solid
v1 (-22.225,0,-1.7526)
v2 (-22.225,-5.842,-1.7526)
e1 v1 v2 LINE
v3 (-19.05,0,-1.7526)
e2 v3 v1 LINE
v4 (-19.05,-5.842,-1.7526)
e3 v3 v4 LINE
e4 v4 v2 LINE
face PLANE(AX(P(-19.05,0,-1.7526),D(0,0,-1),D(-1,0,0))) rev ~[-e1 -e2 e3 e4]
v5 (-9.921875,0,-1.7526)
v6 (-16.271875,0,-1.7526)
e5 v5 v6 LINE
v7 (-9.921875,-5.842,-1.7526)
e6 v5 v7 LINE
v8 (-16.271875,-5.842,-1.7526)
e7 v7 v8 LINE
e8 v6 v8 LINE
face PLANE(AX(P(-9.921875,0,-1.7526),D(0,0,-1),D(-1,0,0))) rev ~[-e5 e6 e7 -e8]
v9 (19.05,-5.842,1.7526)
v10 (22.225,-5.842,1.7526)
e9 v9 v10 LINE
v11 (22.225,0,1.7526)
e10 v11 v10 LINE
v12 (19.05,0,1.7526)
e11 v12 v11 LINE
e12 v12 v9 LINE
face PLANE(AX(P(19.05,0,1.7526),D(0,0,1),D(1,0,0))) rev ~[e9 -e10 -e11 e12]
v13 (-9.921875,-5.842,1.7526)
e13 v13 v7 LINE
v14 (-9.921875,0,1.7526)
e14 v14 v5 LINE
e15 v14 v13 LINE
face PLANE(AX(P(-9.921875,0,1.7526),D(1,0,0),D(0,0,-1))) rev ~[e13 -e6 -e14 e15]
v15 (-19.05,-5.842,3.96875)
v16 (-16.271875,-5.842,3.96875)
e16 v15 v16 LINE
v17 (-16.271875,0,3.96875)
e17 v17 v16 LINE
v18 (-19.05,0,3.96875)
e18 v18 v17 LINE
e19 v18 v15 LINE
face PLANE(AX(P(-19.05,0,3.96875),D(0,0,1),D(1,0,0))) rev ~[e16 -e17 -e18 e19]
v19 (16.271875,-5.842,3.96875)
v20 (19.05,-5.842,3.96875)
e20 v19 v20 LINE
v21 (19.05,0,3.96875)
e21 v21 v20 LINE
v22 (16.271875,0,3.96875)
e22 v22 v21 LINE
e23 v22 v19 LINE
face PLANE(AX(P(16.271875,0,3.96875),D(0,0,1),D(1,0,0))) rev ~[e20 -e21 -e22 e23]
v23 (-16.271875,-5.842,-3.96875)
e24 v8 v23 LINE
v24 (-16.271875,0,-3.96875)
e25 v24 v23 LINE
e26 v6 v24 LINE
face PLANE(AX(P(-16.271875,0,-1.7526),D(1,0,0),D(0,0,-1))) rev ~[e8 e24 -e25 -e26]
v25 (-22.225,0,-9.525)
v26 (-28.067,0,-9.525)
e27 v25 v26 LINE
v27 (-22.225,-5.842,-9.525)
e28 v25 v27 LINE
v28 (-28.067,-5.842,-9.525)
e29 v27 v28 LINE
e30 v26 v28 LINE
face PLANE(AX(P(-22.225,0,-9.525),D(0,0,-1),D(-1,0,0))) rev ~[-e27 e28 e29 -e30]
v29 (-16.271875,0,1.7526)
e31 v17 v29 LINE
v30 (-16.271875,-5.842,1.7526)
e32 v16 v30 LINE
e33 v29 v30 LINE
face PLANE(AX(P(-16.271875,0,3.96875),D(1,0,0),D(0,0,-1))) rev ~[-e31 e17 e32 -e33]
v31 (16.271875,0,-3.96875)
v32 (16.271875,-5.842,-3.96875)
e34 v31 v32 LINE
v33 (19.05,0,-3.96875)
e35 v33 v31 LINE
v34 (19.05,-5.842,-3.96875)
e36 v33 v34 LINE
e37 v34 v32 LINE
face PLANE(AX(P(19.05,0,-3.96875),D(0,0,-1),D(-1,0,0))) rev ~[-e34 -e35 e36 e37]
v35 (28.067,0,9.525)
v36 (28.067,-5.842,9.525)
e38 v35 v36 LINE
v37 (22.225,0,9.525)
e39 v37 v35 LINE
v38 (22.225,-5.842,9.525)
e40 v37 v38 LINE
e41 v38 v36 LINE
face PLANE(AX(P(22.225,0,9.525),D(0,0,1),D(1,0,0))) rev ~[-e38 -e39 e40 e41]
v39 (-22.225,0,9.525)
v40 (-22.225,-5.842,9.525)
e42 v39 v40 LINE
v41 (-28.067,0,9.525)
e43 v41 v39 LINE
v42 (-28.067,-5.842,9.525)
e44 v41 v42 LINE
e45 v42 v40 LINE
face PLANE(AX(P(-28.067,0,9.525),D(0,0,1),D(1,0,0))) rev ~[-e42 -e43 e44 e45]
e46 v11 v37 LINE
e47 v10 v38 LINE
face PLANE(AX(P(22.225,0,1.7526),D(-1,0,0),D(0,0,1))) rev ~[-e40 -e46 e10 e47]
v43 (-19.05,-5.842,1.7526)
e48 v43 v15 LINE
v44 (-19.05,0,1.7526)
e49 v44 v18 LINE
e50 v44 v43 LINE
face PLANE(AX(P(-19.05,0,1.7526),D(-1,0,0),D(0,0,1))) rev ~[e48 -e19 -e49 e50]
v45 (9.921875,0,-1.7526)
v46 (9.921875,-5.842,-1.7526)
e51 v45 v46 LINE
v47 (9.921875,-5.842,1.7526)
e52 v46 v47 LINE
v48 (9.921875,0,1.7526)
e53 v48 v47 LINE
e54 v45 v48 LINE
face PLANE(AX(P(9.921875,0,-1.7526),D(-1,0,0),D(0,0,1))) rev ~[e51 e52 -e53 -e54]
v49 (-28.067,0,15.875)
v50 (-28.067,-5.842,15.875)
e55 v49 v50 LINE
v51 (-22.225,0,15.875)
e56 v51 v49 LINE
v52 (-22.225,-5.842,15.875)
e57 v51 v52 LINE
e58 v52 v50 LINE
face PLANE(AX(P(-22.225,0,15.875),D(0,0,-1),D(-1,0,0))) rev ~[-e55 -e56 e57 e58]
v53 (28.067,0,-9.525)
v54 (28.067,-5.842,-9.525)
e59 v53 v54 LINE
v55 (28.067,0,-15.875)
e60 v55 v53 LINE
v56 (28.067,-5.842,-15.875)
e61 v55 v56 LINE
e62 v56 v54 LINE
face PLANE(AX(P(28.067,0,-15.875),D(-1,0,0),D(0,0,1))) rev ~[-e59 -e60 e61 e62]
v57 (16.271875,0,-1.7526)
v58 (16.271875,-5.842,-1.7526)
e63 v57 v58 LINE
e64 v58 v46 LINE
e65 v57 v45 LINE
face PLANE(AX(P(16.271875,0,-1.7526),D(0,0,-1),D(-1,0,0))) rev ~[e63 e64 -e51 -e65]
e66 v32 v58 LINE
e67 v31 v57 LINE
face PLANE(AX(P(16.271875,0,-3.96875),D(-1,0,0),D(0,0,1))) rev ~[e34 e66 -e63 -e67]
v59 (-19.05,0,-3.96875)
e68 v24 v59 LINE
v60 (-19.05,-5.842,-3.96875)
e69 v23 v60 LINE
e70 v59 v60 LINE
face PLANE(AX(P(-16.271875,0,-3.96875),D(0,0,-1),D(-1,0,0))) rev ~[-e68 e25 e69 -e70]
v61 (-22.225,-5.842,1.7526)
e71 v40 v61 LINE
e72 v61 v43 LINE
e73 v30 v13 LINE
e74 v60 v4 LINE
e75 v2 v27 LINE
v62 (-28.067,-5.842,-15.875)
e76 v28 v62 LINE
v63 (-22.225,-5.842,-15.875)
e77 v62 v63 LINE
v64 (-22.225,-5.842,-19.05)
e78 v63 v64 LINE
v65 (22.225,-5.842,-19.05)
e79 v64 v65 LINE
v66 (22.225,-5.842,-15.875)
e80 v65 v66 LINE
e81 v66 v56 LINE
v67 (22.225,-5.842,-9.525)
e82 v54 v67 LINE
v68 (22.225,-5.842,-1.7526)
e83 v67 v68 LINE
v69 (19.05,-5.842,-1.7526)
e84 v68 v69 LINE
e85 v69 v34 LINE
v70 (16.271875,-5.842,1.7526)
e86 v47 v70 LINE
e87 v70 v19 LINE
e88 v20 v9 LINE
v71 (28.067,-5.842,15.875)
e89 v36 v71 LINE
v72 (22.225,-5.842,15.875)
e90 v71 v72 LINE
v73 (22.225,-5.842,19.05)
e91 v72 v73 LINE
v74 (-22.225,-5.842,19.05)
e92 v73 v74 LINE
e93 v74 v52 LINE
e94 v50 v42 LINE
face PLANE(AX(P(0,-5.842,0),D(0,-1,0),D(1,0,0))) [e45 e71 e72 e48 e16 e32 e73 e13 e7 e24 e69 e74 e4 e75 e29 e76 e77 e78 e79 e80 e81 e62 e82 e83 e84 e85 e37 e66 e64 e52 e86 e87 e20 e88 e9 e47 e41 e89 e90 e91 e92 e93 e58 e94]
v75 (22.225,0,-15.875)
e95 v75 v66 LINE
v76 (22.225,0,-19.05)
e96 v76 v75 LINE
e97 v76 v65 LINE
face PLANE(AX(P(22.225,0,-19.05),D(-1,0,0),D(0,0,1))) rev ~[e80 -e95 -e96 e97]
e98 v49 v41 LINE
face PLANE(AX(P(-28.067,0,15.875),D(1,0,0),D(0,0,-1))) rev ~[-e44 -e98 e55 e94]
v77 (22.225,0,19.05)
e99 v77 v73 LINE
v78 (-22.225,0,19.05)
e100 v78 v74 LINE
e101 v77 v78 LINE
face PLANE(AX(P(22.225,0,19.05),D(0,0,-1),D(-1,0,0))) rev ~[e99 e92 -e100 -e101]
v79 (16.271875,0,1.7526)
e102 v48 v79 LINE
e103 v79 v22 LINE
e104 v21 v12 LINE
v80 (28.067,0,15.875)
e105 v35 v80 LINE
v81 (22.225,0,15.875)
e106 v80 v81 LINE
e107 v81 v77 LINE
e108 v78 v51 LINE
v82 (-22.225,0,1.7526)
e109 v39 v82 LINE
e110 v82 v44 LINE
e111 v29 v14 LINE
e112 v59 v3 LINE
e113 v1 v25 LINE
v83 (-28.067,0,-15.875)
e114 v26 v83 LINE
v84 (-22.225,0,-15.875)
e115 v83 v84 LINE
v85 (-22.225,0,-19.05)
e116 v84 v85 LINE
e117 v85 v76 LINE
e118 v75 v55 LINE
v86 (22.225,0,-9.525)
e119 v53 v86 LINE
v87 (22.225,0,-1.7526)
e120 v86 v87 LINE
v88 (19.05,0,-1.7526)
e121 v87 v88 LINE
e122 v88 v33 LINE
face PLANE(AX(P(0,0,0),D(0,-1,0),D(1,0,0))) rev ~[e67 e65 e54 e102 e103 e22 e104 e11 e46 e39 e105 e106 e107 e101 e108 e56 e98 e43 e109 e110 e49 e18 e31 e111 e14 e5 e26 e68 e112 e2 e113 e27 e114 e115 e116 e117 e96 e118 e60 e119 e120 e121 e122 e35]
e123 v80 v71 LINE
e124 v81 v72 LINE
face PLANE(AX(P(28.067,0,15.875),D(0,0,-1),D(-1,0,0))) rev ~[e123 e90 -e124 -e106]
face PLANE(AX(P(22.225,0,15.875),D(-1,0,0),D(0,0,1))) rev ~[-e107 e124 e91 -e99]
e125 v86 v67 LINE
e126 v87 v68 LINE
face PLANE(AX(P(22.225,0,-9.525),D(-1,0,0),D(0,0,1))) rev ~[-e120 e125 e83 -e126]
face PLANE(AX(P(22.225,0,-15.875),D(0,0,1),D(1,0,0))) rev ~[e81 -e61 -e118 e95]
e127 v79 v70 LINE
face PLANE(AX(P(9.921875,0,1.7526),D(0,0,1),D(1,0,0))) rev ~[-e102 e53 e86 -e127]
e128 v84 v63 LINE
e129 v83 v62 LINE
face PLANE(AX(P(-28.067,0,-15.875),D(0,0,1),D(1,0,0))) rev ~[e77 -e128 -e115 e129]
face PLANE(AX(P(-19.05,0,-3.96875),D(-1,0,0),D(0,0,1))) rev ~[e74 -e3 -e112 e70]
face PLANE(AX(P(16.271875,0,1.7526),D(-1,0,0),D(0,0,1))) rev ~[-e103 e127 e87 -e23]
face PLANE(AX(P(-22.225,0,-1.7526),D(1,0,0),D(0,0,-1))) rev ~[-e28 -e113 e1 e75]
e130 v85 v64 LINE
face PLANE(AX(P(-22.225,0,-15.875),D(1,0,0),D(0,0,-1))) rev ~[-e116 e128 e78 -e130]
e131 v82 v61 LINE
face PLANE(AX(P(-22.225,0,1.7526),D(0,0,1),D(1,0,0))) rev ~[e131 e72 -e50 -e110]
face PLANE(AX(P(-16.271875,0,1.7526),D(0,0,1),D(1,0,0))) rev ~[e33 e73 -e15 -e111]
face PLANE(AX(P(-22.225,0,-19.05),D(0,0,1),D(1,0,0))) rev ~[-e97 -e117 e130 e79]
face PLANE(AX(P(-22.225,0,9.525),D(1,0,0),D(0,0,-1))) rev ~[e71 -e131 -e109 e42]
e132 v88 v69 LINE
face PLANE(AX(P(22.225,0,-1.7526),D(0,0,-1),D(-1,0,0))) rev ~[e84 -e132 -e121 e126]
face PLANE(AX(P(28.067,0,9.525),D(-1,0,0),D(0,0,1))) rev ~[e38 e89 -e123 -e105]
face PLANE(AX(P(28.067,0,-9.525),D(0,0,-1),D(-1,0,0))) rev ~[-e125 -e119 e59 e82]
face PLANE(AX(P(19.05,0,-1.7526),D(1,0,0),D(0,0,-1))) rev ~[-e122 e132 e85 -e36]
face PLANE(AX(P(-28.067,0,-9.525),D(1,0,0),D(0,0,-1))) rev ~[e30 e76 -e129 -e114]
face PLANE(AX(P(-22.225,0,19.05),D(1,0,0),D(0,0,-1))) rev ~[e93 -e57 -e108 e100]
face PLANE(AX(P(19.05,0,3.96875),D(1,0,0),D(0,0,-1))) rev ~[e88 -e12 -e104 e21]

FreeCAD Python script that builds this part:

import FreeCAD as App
import Part
import Sketcher
Q = App.Units.Quantity

doc = App.newDocument("Part")
body = doc.addObject("PartDesign::Body", "Body")

# Sketch on XZ plane
sketch1 = body.newObject("Sketcher::SketchObject", "Sketch")
sketch1.AttachmentSupport = (doc.getObject("XZ_Plane"), [""])
sketch1.MapMode = "FlatFace"
sketch1.addGeometry(Part.LineSegment(App.Vector(22.225, 19.05, 0), App.Vector(-22.225, 19.05, 0)), False)
sketch1.addGeometry(Part.LineSegment(App.Vector(-22.225, 19.05, 0), App.Vector(-22.225, 15.875, 0)), False)
sketch1.addGeometry(Part.LineSegment(App.Vector(-22.225, 15.875, 0), App.Vector(-28.067, 15.875, 0)), False)
sketch1.addGeometry(Part.LineSegment(App.Vector(-28.067, 15.875, 0), App.Vector(-28.067, 9.525, 0)), False)
sketch1.addGeometry(Part.LineSegment(App.Vector(-28.067, 9.525, 0), App.Vector(-22.225, 9.525, 0)), False)
sketch1.addGeometry(Part.LineSegment(App.Vector(-22.225, 9.525, 0), App.Vector(-22.225, 1.7526, 0)), False)
sketch1.addGeometry(Part.LineSegment(App.Vector(-22.225, 1.7526, 0), App.Vector(-19.05, 1.7526, 0)), False)
sketch1.addGeometry(Part.LineSegment(App.Vector(-19.05, 1.7526, 0), App.Vector(-19.05, 3.96875, 0)), False)
sketch1.addGeometry(Part.LineSegment(App.Vector(-19.05, 3.96875, 0), App.Vector(-16.271875, 3.96875, 0)), False)
sketch1.addGeometry(Part.LineSegment(App.Vector(-16.271875, 3.96875, 0), App.Vector(-16.271875, 1.7526, 0)), False)
sketch1.addGeometry(Part.LineSegment(App.Vector(-16.271875, 1.7526, 0), App.Vector(-9.921875, 1.7526, 0)), False)
sketch1.addGeometry(Part.LineSegment(App.Vector(-9.921875, 1.7526, 0), App.Vector(-9.921875, -1.7526, 0)), False)
sketch1.addGeometry(Part.LineSegment(App.Vector(-9.921875, -1.7526, 0), App.Vector(-16.271875, -1.7526, 0)), False)
sketch1.addGeometry(Part.LineSegment(App.Vector(-16.271875, -1.7526, 0), App.Vector(-16.271875, -3.96875, 0)), False)
sketch1.addGeometry(Part.LineSegment(App.Vector(-16.271875, -3.96875, 0), App.Vector(-19.05, -3.96875, 0)), False)
sketch1.addGeometry(Part.LineSegment(App.Vector(-19.05, -3.96875, 0), App.Vector(-19.05, -1.7526, 0)), False)
sketch1.addGeometry(Part.LineSegment(App.Vector(-19.05, -1.7526, 0), App.Vector(-22.225, -1.7526, 0)), False)
sketch1.addGeometry(Part.LineSegment(App.Vector(-22.225, -1.7526, 0), App.Vector(-22.225, -9.525, 0)), False)
sketch1.addGeometry(Part.LineSegment(App.Vector(-22.225, -9.525, 0), App.Vector(-28.067, -9.525, 0)), False)
sketch1.addGeometry(Part.LineSegment(App.Vector(-28.067, -9.525, 0), App.Vector(-28.067, -15.875, 0)), False)
sketch1.addGeometry(Part.LineSegment(App.Vector(-28.067, -15.875, 0), App.Vector(-22.225, -15.875, 0)), False)
sketch1.addGeometry(Part.LineSegment(App.Vector(-22.225, -15.875, 0), App.Vector(-22.225, -19.05, 0)), False)
sketch1.addGeometry(Part.LineSegment(App.Vector(-22.225, -19.05, 0), App.Vector(22.225, -19.05, 0)), False)
sketch1.addGeometry(Part.LineSegment(App.Vector(22.225, -19.05, 0), App.Vector(22.225, -15.875, 0)), False)
sketch1.addGeometry(Part.LineSegment(App.Vector(22.225, -15.875, 0), App.Vector(28.067, -15.875, 0)), False)
sketch1.addGeometry(Part.LineSegment(App.Vector(28.067, -15.875, 0), App.Vector(28.067, -9.525, 0)), False)
sketch1.addGeometry(Part.LineSegment(App.Vector(28.067, -9.525, 0), App.Vector(22.225, -9.525, 0)), False)
sketch1.addGeometry(Part.LineSegment(App.Vector(22.225, -9.525, 0), App.Vector(22.225, -1.7526, 0)), False)
sketch1.addGeometry(Part.LineSegment(App.Vector(22.225, -1.7526, 0), App.Vector(19.05, -1.7526, 0)), False)
sketch1.addGeometry(Part.LineSegment(App.Vector(19.05, -1.7526, 0), App.Vector(19.05, -3.96875, 0)), False)
sketch1.addGeometry(Part.LineSegment(App.Vector(19.05, -3.96875, 0), App.Vector(16.271875, -3.96875, 0)), False)
sketch1.addGeometry(Part.LineSegment(App.Vector(16.271875, -3.96875, 0), App.Vector(16.271875, -1.7526, 0)), False)
sketch1.addGeometry(Part.LineSegment(App.Vector(16.271875, -1.7526, 0), App.Vector(9.921875, -1.7526, 0)), False)
sketch1.addGeometry(Part.LineSegment(App.Vector(9.921875, -1.7526, 0), App.Vector(9.921875, 1.7526, 0)), False)
sketch1.addGeometry(Part.LineSegment(App.Vector(9.921875, 1.7526, 0), App.Vector(16.271875, 1.7526, 0)), False)
sketch1.addGeometry(Part.LineSegment(App.Vector(16.271875, 1.7526, 0), App.Vector(16.271875, 3.96875, 0)), False)
sketch1.addGeometry(Part.LineSegment(App.Vector(16.271875, 3.96875, 0), App.Vector(19.05, 3.96875, 0)), False)
sketch1.addGeometry(Part.LineSegment(App.Vector(19.05, 3.96875, 0), App.Vector(19.05, 1.7526, 0)), False)
sketch1.addGeometry(Part.LineSegment(App.Vector(19.05, 1.7526, 0), App.Vector(22.225, 1.7526, 0)), False)
sketch1.addGeometry(Part.LineSegment(App.Vector(22.225, 1.7526, 0), App.Vector(22.225, 9.525, 0)), False)
sketch1.addGeometry(Part.LineSegment(App.Vector(22.225, 9.525, 0), App.Vector(28.067, 9.525, 0)), False)
sketch1.addGeometry(Part.LineSegment(App.Vector(28.067, 9.525, 0), App.Vector(28.067, 15.875, 0)), False)
sketch1.addGeometry(Part.LineSegment(App.Vector(28.067, 15.875, 0), App.Vector(22.225, 15.875, 0)), False)
sketch1.addGeometry(Part.LineSegment(App.Vector(22.225, 15.875, 0), App.Vector(22.225, 19.05, 0)), False)
sketch1.addConstraint(Sketcher.Constraint("Coincident", 0, 2, 1, 1))
sketch1.addConstraint(Sketcher.Constraint("Coincident", 1, 2, 2, 1))
sketch1.addConstraint(Sketcher.Constraint("Coincident", 2, 2, 3, 1))
sketch1.addConstraint(Sketcher.Constraint("Coincident", 3, 2, 4, 1))
sketch1.addConstraint(Sketcher.Constraint("Coincident", 4, 2, 5, 1))
sketch1.addConstraint(Sketcher.Constraint("Coincident", 5, 2, 6, 1))
sketch1.addConstraint(Sketcher.Constraint("Coincident", 6, 2, 7, 1))
sketch1.addConstraint(Sketcher.Constraint("Coincident", 7, 2, 8, 1))
sketch1.addConstraint(Sketcher.Constraint("Coincident", 8, 2, 9, 1))
sketch1.addConstraint(Sketcher.Constraint("Coincident", 9, 2, 10, 1))
sketch1.addConstraint(Sketcher.Constraint("Coincident", 10, 2, 11, 1))
sketch1.addConstraint(Sketcher.Constraint("Coincident", 11, 2, 12, 1))
sketch1.addConstraint(Sketcher.Constraint("Coincident", 12, 2, 13, 1))
sketch1.addConstraint(Sketcher.Constraint("Coincident", 13, 2, 14, 1))
sketch1.addConstraint(Sketcher.Constraint("Coincident", 14, 2, 15, 1))
sketch1.addConstraint(Sketcher.Constraint("Coincident", 15, 2, 16, 1))
sketch1.addConstraint(Sketcher.Constraint("Coincident", 16, 2, 17, 1))
sketch1.addConstraint(Sketcher.Constraint("Coincident", 17, 2, 18, 1))
sketch1.addConstraint(Sketcher.Constraint("Coincident", 18, 2, 19, 1))
sketch1.addConstraint(Sketcher.Constraint("Coincident", 19, 2, 20, 1))
sketch1.addConstraint(Sketcher.Constraint("Coincident", 20, 2, 21, 1))
sketch1.addConstraint(Sketcher.Constraint("Coincident", 21, 2, 22, 1))
sketch1.addConstraint(Sketcher.Constraint("Coincident", 22, 2, 23, 1))
sketch1.addConstraint(Sketcher.Constraint("Coincident", 23, 2, 24, 1))
sketch1.addConstraint(Sketcher.Constraint("Coincident", 24, 2, 25, 1))
sketch1.addConstraint(Sketcher.Constraint("Coincident", 25, 2, 26, 1))
sketch1.addConstraint(Sketcher.Constraint("Coincident", 26, 2, 27, 1))
sketch1.addConstraint(Sketcher.Constraint("Coincident", 27, 2, 28, 1))
sketch1.addConstraint(Sketcher.Constraint("Coincident", 28, 2, 29, 1))
sketch1.addConstraint(Sketcher.Constraint("Coincident", 29, 2, 30, 1))
sketch1.addConstraint(Sketcher.Constraint("Coincident", 30, 2, 31, 1))
sketch1.addConstraint(Sketcher.Constraint("Coincident", 31, 2, 32, 1))
sketch1.addConstraint(Sketcher.Constraint("Coincident", 32, 2, 33, 1))
sketch1.addConstraint(Sketcher.Constraint("Coincident", 33, 2, 34, 1))
sketch1.addConstraint(Sketcher.Constraint("Coincident", 34, 2, 35, 1))
sketch1.addConstraint(Sketcher.Constraint("Coincident", 35, 2, 36, 1))
sketch1.addConstraint(Sketcher.Constraint("Coincident", 36, 2, 37, 1))
sketch1.addConstraint(Sketcher.Constraint("Coincident", 37, 2, 38, 1))
sketch1.addConstraint(Sketcher.Constraint("Coincident", 38, 2, 39, 1))
sketch1.addConstraint(Sketcher.Constraint("Coincident", 39, 2, 40, 1))
sketch1.addConstraint(Sketcher.Constraint("Coincident", 40, 2, 41, 1))
sketch1.addConstraint(Sketcher.Constraint("Coincident", 41, 2, 42, 1))
sketch1.addConstraint(Sketcher.Constraint("Coincident", 42, 2, 43, 1))
sketch1.addConstraint(Sketcher.Constraint("Coincident", 43, 2, 0, 1))
sketch1.addConstraint(Sketcher.Constraint("Horizontal", 0))
sketch1.addConstraint(Sketcher.Constraint("Vertical", 1))
sketch1.addConstraint(Sketcher.Constraint("Horizontal", 2))
sketch1.addConstraint(Sketcher.Constraint("Vertical", 3))
sketch1.addConstraint(Sketcher.Constraint("Horizontal", 4))
sketch1.addConstraint(Sketcher.Constraint("Vertical", 5))
sketch1.addConstraint(Sketcher.Constraint("Horizontal", 6))
sketch1.addConstraint(Sketcher.Constraint("Vertical", 7))
sketch1.addConstraint(Sketcher.Constraint("Horizontal", 8))
sketch1.addConstraint(Sketcher.Constraint("Vertical", 9))
sketch1.addConstraint(Sketcher.Constraint("Horizontal", 10))
sketch1.addConstraint(Sketcher.Constraint("Vertical", 11))
sketch1.addConstraint(Sketcher.Constraint("Horizontal", 12))
sketch1.addConstraint(Sketcher.Constraint("Vertical", 13))
sketch1.addConstraint(Sketcher.Constraint("Horizontal", 14))
sketch1.addConstraint(Sketcher.Constraint("Vertical", 15))
sketch1.addConstraint(Sketcher.Constraint("Horizontal", 16))
sketch1.addConstraint(Sketcher.Constraint("Vertical", 17))
sketch1.addConstraint(Sketcher.Constraint("Horizontal", 18))
sketch1.addConstraint(Sketcher.Constraint("Vertical", 19))
sketch1.addConstraint(Sketcher.Constraint("Horizontal", 20))
sketch1.addConstraint(Sketcher.Constraint("Vertical", 21))
sketch1.addConstraint(Sketcher.Constraint("Horizontal", 22))
sketch1.addConstraint(Sketcher.Constraint("Vertical", 23))
sketch1.addConstraint(Sketcher.Constraint("Horizontal", 24))
sketch1.addConstraint(Sketcher.Constraint("Vertical", 25))
sketch1.addConstraint(Sketcher.Constraint("Horizontal", 26))
sketch1.addConstraint(Sketcher.Constraint("Vertical", 27))
sketch1.addConstraint(Sketcher.Constraint("Horizontal", 28))
sketch1.addConstraint(Sketcher.Constraint("Vertical", 29))
sketch1.addConstraint(Sketcher.Constraint("Horizontal", 30))
sketch1.addConstraint(Sketcher.Constraint("Vertical", 31))
sketch1.addConstraint(Sketcher.Constraint("Horizontal", 32))
sketch1.addConstraint(Sketcher.Constraint("Vertical", 33))
sketch1.addConstraint(Sketcher.Constraint("Horizontal", 34))
sketch1.addConstraint(Sketcher.Constraint("Vertical", 35))
sketch1.addConstraint(Sketcher.Constraint("Horizontal", 36))
sketch1.addConstraint(Sketcher.Constraint("Vertical", 37))
sketch1.addConstraint(Sketcher.Constraint("Horizontal", 38))
sketch1.addConstraint(Sketcher.Constraint("Vertical", 39))
sketch1.addConstraint(Sketcher.Constraint("Horizontal", 40))
sketch1.addConstraint(Sketcher.Constraint("Vertical", 41))
sketch1.addConstraint(Sketcher.Constraint("Horizontal", 42))
sketch1.addConstraint(Sketcher.Constraint("Vertical", 43))
sketch1.addConstraint(Sketcher.Constraint("Symmetric", 0, 2, 22, 2, -1, 1))
sketch1.addConstraint(Sketcher.Constraint("Symmetric", 2, 2, 24, 2, -1, 1))
sketch1.addConstraint(Sketcher.Constraint("Symmetric", 4, 2, 26, 2, -1, 1))
sketch1.addConstraint(Sketcher.Constraint("Symmetric", 6, 2, 28, 2, -1, 1))
sketch1.addConstraint(Sketcher.Constraint("Symmetric", 8, 2, 30, 2, -1, 1))
sketch1.addConstraint(Sketcher.Constraint("Symmetric", 10, 2, 32, 2, -1, 1))
sketch1.addConstraint(Sketcher.Constraint("Symmetric", 12, 2, 34, 2, -1, 1))
sketch1.addConstraint(Sketcher.Constraint("Symmetric", 14, 2, 36, 2, -1, 1))
sketch1.addConstraint(Sketcher.Constraint("Symmetric", 16, 2, 38, 2, -1, 1))
sketch1.addConstraint(Sketcher.Constraint("Symmetric", 18, 2, 40, 2, -1, 1))
sketch1.addConstraint(Sketcher.Constraint("Symmetric", 20, 2, 42, 2, -1, 1))
sketch1.addConstraint(Sketcher.Constraint("Symmetric", 20, 2, 23, 2, -2))
sketch1.addConstraint(Sketcher.Constraint("Symmetric", 18, 2, 25, 2, -2))
sketch1.addConstraint(Sketcher.Constraint("Symmetric", 16, 2, 27, 2, -2))
sketch1.addConstraint(Sketcher.Constraint("Symmetric", 14, 2, 29, 2, -2))
sketch1.addConstraint(Sketcher.Constraint("Symmetric", 12, 2, 31, 2, -2))
sketch1.addConstraint(Sketcher.Constraint("Horizontal", 6, 2, 9, 2))
sketch1.addConstraint(Sketcher.Constraint("Vertical", 1, 2, 4, 2))
sketch1.addConstraint(Sketcher.Constraint("Equal", 38, 1))
sketch1.addConstraint(Sketcher.Constraint("Equal", 34, 3))
sketch1.addConstraint(Sketcher.Constraint("DistanceX", 0, 2, 0, 1, Q("1.75 in")))
sketch1.addConstraint(Sketcher.Constraint("DistanceX", 2, 2, 2, 1, Q("0.23 in")))
sketch1.addConstraint(Sketcher.Constraint("DistanceX", 10, 1, 10, 2, Q("0.25 in")))
sketch1.addConstraint(Sketcher.Constraint("DistanceX", 6, 1, 6, 2, Q("0.125 in")))
sketch1.addConstraint(Sketcher.Constraint("DistanceX", 8, 1, 8, 2, Q("0.109375 in")))
sketch1.addConstraint(Sketcher.Constraint("DistanceY", 5, 2, 5, 1, Q("0.306 in")))
sketch1.addConstraint(Sketcher.Constraint("DistanceY", 11, 2, 11, 1, Q("0.138 in")))
sketch1.addConstraint(Sketcher.Constraint("DistanceY", -1, 1, 7, 2, Q("0.15625 in")))
pad1 = body.newObject("PartDesign::Pad", "Pad")
pad1.Profile = sketch1
pad1.Length = Q("0.23 in")

doc.recompute()
